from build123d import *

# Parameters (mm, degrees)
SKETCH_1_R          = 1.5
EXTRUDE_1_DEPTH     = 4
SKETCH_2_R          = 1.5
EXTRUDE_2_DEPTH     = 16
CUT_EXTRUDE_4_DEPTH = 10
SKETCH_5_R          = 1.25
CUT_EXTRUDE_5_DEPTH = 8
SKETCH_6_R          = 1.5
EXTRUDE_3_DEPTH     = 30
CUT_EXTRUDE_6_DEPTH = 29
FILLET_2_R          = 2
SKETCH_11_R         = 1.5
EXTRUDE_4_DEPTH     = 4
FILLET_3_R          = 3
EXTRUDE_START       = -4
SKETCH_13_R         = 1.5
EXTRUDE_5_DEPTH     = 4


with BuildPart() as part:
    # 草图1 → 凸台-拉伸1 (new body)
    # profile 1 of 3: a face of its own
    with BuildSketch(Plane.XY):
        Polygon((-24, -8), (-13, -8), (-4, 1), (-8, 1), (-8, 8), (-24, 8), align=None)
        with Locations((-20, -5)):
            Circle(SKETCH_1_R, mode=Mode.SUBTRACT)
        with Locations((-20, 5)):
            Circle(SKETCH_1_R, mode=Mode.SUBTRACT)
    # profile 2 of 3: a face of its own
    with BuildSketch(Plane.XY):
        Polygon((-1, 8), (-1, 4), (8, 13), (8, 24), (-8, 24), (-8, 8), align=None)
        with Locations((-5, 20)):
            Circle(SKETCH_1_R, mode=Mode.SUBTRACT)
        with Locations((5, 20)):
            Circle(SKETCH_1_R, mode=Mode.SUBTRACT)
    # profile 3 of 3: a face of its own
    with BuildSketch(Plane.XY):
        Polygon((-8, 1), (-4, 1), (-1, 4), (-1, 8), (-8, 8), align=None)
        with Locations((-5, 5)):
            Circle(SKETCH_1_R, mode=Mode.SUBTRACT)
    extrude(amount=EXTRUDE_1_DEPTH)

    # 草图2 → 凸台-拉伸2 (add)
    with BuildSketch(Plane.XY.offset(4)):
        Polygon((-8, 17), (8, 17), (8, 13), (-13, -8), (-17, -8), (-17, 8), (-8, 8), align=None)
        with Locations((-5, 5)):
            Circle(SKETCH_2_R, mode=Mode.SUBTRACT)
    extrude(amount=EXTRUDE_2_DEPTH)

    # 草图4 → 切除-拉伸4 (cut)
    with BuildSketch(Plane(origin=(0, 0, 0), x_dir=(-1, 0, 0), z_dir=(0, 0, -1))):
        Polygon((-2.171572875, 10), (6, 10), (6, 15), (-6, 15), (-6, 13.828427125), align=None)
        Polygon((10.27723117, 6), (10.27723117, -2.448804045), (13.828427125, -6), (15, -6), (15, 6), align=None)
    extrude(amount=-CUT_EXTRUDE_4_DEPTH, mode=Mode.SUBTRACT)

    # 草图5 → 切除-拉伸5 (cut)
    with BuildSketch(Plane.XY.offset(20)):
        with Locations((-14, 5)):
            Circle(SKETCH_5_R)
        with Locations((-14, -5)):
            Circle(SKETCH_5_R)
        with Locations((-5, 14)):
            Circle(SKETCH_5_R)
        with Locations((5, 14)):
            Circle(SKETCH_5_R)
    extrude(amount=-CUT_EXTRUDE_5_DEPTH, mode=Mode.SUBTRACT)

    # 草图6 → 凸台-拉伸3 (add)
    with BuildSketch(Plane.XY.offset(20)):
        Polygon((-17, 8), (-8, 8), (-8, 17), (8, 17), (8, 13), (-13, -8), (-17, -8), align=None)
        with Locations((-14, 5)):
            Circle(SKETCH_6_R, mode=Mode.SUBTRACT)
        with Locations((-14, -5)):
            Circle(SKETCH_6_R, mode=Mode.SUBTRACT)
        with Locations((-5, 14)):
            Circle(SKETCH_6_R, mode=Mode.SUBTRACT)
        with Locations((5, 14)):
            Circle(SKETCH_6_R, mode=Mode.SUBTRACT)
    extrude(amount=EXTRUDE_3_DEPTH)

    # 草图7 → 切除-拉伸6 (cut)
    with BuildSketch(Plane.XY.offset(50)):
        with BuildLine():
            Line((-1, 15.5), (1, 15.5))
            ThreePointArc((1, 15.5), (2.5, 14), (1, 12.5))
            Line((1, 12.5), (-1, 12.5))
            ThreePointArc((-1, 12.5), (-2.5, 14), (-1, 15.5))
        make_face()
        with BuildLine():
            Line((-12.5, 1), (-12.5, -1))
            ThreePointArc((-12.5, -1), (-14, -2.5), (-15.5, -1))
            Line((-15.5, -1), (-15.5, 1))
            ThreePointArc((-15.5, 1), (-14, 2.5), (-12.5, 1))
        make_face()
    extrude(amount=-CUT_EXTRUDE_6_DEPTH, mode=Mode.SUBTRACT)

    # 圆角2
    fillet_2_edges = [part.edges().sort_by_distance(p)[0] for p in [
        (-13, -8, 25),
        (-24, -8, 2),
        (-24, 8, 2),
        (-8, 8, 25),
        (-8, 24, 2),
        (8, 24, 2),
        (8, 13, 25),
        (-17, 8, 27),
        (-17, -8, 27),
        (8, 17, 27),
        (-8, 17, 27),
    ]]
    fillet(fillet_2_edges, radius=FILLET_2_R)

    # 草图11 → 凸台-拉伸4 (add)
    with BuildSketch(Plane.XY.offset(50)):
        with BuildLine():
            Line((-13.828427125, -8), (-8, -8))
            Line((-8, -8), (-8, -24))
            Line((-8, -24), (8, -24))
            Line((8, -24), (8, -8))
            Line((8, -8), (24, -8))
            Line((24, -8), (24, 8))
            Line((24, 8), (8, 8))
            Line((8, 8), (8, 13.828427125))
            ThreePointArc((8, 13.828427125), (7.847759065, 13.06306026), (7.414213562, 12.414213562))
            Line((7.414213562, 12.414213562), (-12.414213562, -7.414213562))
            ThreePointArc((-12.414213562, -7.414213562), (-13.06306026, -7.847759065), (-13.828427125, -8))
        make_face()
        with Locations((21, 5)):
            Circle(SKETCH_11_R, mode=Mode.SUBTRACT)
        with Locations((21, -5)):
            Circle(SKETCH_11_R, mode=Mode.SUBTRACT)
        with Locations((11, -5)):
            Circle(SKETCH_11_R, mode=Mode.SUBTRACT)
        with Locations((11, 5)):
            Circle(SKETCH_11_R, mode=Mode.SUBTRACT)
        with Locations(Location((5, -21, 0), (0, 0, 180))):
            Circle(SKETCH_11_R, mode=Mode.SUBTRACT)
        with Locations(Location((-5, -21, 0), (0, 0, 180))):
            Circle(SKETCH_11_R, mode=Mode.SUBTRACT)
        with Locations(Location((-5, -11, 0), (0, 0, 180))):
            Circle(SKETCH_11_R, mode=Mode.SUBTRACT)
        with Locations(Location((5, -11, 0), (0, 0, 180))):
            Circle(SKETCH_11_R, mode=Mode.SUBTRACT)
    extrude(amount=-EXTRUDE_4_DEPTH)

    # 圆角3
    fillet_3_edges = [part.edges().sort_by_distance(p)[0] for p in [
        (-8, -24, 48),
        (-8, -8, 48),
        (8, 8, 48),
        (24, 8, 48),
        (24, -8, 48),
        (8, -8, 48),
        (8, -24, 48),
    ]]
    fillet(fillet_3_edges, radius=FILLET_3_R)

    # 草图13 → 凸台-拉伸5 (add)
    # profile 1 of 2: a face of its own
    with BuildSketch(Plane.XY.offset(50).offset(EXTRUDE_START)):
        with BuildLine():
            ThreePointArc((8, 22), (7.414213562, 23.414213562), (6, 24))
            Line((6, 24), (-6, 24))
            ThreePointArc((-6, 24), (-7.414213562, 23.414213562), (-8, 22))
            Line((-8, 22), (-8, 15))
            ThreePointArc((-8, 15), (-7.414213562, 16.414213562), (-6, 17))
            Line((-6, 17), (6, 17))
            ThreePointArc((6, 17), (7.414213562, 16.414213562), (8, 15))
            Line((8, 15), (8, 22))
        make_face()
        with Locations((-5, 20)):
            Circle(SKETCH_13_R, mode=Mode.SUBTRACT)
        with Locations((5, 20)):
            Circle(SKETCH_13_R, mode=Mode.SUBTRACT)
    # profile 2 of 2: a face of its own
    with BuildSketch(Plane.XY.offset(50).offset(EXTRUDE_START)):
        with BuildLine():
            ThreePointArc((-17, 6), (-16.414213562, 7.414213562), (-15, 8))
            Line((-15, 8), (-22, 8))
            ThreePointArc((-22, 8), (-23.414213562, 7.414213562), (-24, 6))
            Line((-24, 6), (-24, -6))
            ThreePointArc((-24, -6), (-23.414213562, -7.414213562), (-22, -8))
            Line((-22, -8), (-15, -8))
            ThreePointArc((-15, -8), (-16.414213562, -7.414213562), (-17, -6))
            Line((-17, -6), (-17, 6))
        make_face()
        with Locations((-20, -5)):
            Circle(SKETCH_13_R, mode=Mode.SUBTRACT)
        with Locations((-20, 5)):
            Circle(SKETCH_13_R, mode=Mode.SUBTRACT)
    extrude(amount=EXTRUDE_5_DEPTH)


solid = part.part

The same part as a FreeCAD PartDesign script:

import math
import FreeCAD as App
import Part
import Sketcher

V = App.Vector
Q = App.Units.Quantity


def edges_at(feature, points):
    """Names of the edges that pass closest to the given points."""
    edges = feature.Shape.Edges
    near = lambda p: min(range(len(edges)), key=lambda i: edges[i].distToShape(Part.Vertex(*p))[0])
    return sorted({f"Edge{near(p) + 1}" for p in points})


def add_polygon(sketch, points):
    """Adds a closed chain of lines whose ends are joined by coincident constraints."""
    first, n = sketch.GeometryCount, len(points)
    for a, b in zip(points, points[1:] + points[:1]):
        sketch.addGeometry(Part.LineSegment(App.Vector(*a, 0), App.Vector(*b, 0)), False)
    for i in range(n):
        sketch.addConstraint(Sketcher.Constraint("Coincident", first + i, 2, first + (i + 1) % n, 1))

doc = App.newDocument("Part")
params = doc.addObject("Spreadsheet::Sheet", "Params")
for row, (alias, value) in enumerate([
    ("sketch1_diameter", "3 mm"),
    ("sketch1_width", "11 mm"),
    ("sketch1_width2", "16 mm"),
    ("pad1_length", "4 mm"),
    ("sketch2_diameter", "3 mm"),
    ("sketch2_width", "16 mm"),
    ("sketch2_width2", "9 mm"),
    ("sketch2_width3", "4 mm"),
    ("pad2_length", "16 mm"),
    ("sketch3_width", "12 mm"),
    ("sketch3_height", "5 mm"),
    ("pocket1_length", "10 mm"),
    ("sketch4_diameter", "2.5 mm"),
    ("pocket2_length", "8 mm"),
    ("sketch5_diameter", "3 mm"),
    ("sketch5_width", "9 mm"),
    ("sketch5_width2", "4 mm"),
    ("sketch5_width3", "16 mm"),
    ("pad3_length", "30 mm"),
    ("sketch6_radius", "1.5 mm"),
    ("sketch6_width", "2 mm"),
    ("pocket3_length", "29 mm"),
    ("fillet_radius", "2 mm"),
    ("sketch7_diameter", "3 mm"),
    ("sketch7_radius", "2 mm"),
    ("sketch7_width", "16 mm"),
    ("pad4_length", "4 mm"),
    ("fillet2_radius", "3 mm"),
    ("sketch8_diameter", "3 mm"),
    ("sketch8_radius", "2 mm"),
    ("sketch8_width", "12 mm"),
    ("sketch8_width2", "7 mm"),
    ("pad5_length", "4 mm"),
], start=1):
    params.set(f"A{row}", alias)
    params.set(f"B{row}", "=" + value)
    params.setAlias(f"B{row}", alias)

body = doc.addObject("PartDesign::Body", "Body")

sketch1 = body.newObject("Sketcher::SketchObject", "Sketch")
sketch1.AttachmentSupport = (doc.getObject("XY_Plane"), [""])
sketch1.MapMode = "FlatFace"
add_polygon(sketch1, [(-24, -8), (-13, -8), (8, 13), (8, 24), (-8, 24), (-8, 8), (-24, 8)])
sketch1.addGeometry(Part.Circle(V(-20, -5, 0), V(0, 0, 1), 1.5), False)
sketch1.addGeometry(Part.Circle(V(-20, 5, 0), V(0, 0, 1), 1.5), False)
sketch1.addGeometry(Part.Circle(V(-5, 5, 0), V(0, 0, 1), 1.5), False)
sketch1.addGeometry(Part.Circle(V(5, 20, 0), V(0, 0, 1), 1.5), False)
sketch1.addGeometry(Part.Circle(V(-5, 20, 0), V(0, 0, 1), 1.5), False)
sketch1.addConstraint([
    Sketcher.Constraint("Horizontal", 0),
    Sketcher.Constraint("Vertical", 2),
    Sketcher.Constraint("Horizontal", 3),
    Sketcher.Constraint("Vertical", 4),
    Sketcher.Constraint("Horizontal", 5),
    Sketcher.Constraint("Vertical", 6),
    Sketcher.Constraint("Equal", 7, 8),
    Sketcher.Constraint("Equal", 8, 9),
    Sketcher.Constraint("Equal", 9, 10),
    Sketcher.Constraint("Equal", 10, 11),
    Sketcher.Constraint("Symmetric", 10, 3, 11, 3, -2),
    Sketcher.Constraint("Symmetric", 7, 3, 8, 3, -1),
    Sketcher.Constraint("Horizontal", 8, 3, 9, 3),
    Sketcher.Constraint("Vertical", 9, 3, 11, 3),
    Sketcher.Constraint("Equal", 3, 5),
    Sketcher.Constraint("Equal", 0, 2),
    Sketcher.Constraint("Equal", 5, 4),
    Sketcher.Constraint("Equal", 4, 6),
    Sketcher.Constraint("Diameter", 7, 3.0),
    Sketcher.Constraint("DistanceX", 0, 1, 0, 2, 11.0),
    Sketcher.Constraint("DistanceX", 3, 2, 3, 1, 16.0),
    Sketcher.Constraint("DistanceX", 7, 3, -1, 1, 20.0),
    Sketcher.Constraint("DistanceY", 7, 3, -1, 1, 5.0),
    Sketcher.Constraint("DistanceX", 9, 3, -1, 1, 5.0),
    Sketcher.Constraint("DistanceY", -1, 1, 10, 3, 20.0),
    Sketcher.Constraint("DistanceX", 0, 2, -1, 1, 13.0),
    Sketcher.Constraint("DistanceY", 0, 2, -1, 1, 8.0),
])
sketch1.setExpression("Constraints[25]", "Params.sketch1_diameter")
sketch1.setExpression("Constraints[26]", "Params.sketch1_width")
sketch1.setExpression("Constraints[27]", "Params.sketch1_width2")
pad1 = body.newObject("PartDesign::Pad", "Pad")
pad1.Profile = sketch1
pad1.setExpression("Length", "Params.pad1_length")

sketch2 = body.newObject("Sketcher::SketchObject", "Sketch001")
sketch2.AttachmentSupport = (doc.getObject("XY_Plane"), [""])
sketch2.MapMode = "FlatFace"
sketch2.AttachmentOffset = App.Placement(V(0, 0, 4), App.Rotation())
add_polygon(sketch2, [(8, 17), (-8, 17), (-8, 8), (-17, 8), (-17, -8), (-13, -8), (8, 13)])
sketch2.addGeometry(Part.Circle(V(-5, 5, 0), V(0, 0, 1), 1.5), False)
sketch2.addConstraint([
    Sketcher.Constraint("Horizontal", 0),
    Sketcher.Constraint("Vertical", 1),
    Sketcher.Constraint("Horizontal", 2),
    Sketcher.Constraint("Vertical", 3),
    Sketcher.Constraint("Horizontal", 4),
    Sketcher.Constraint("Vertical", 6),
    Sketcher.Constraint("Equal", 2, 1),
    Sketcher.Constraint("Equal", 0, 3),
    Sketcher.Constraint("Equal", 4, 6),
    Sketcher.Constraint("Diameter", 7, 3.0),
    Sketcher.Constraint("DistanceX", 0, 2, 0, 1, 16.0),
    Sketcher.Constraint("DistanceX", 2, 2, 2, 1, 9.0),
    Sketcher.Constraint("DistanceX", 4, 1, 4, 2, 4.0),
    Sketcher.Constraint("DistanceX", 7, 3, -1, 1, 5.0),
    Sketcher.Constraint("DistanceY", -1, 1, 7, 3, 5.0),
    Sketcher.Constraint("DistanceX", 0, 2, -1, 1, 8.0),
    Sketcher.Constraint("DistanceY", -1, 1, 0, 2, 17.0),
])
sketch2.setExpression("Constraints[16]", "Params.sketch2_diameter")
sketch2.setExpression("Constraints[17]", "Params.sketch2_width")
sketch2.setExpression("Constraints[18]", "Params.sketch2_width2")
sketch2.setExpression("Constraints[19]", "Params.sketch2_width3")
pad2 = body.newObject("PartDesign::Pad", "Pad001")
pad2.Profile = sketch2
pad2.setExpression("Length", "Params.pad2_length")

sketch3 = body.newObject("Sketcher::SketchObject", "Sketch002")
sketch3.AttachmentSupport = (doc.getObject("XY_Plane"), [""])
sketch3.MapMode = "FlatFace"
add_polygon(sketch3, [(2.171573, 10), (-6, 10), (-6, 15), (6, 15), (6, 13.828427)])
add_polygon(sketch3, [(-10.277231, 6), (-10.277231, -2.448804), (-13.828427, -6), (-15, -6), (-15, 6)])
sketch3.addConstraint([
    Sketcher.Constraint("Horizontal", 0),
    Sketcher.Constraint("Vertical", 1),
    Sketcher.Constraint("Horizontal", 2),
    Sketcher.Constraint("Vertical", 3),
    Sketcher.Constraint("Vertical", 5),
    Sketcher.Constraint("Horizontal", 7),
    Sketcher.Constraint("Vertical", 8),
    Sketcher.Constraint("Horizontal", 9),
    Sketcher.Constraint("Parallel", 4, 6),
    Sketcher.Constraint("Equal", 7, 3),
    Sketcher.Constraint("Equal", 2, 8),
    Sketcher.Constraint("DistanceX", 2, 1, 2, 2, 12.0),
    Sketcher.Constraint("DistanceY", 1, 1, 1, 2, 5.0),
    Sketcher.Constraint("Angle", 4, Q("-135 deg")),
    Sketcher.Constraint("DistanceX", 0, 2, -1, 1, 6.0),
    Sketcher.Constraint("DistanceY", -1, 1, 0, 2, 10.0),
    Sketcher.Constraint("DistanceY", 6, 2, -1, 1, 6.0),
    Sketcher.Constraint("DistanceX", 7, 2, -1, 1, 15.0),
    Sketcher.Constraint("DistanceX", 9, 1, 9, 2, 4.722769),
    Sketcher.Constraint("Distance", 6, 5.022149),
])
sketch3.setExpression("Constraints[21]", "Params.sketch3_width")
sketch3.setExpression("Constraints[22]", "Params.sketch3_height")
pocket1 = body.newObject("PartDesign::Pocket", "Pocket")
pocket1.Profile = sketch3
pocket1.setExpression("Length", "Params.pocket1_length")
pocket1.Reversed = True

sketch4 = body.newObject("Sketcher::SketchObject", "Sketch003")
sketch4.AttachmentSupport = (doc.getObject("XY_Plane"), [""])
sketch4.MapMode = "FlatFace"
sketch4.AttachmentOffset = App.Placement(V(0, 0, 20), App.Rotation())
sketch4.addGeometry([
    Part.Circle(V(-14, 5, 0), V(0, 0, 1), 1.25),
    Part.Circle(V(-14, -5, 0), V(0, 0, 1), 1.25),
    Part.Circle(V(-5, 14, 0), V(0, 0, 1), 1.25),
    Part.Circle(V(5, 14, 0), V(0, 0, 1), 1.25),
], False)
sketch4.addConstraint([
    Sketcher.Constraint("Equal", 0, 1),
    Sketcher.Constraint("Equal", 1, 2),
    Sketcher.Constraint("Equal", 2, 3),
    Sketcher.Constraint("Symmetric", 2, 3, 3, 3, -2),
    Sketcher.Constraint("Symmetric", 0, 3, 1, 3, -1),
    Sketcher.Constraint("Diameter", 0, 2.5),
    Sketcher.Constraint("DistanceX", 0, 3, -1, 1, 14.0),
    Sketcher.Constraint("DistanceY", -1, 1, 0, 3, 5.0),
    Sketcher.Constraint("DistanceX", 2, 3, -1, 1, 5.0),
    Sketcher.Constraint("DistanceY", -1, 1, 2, 3, 14.0),
])
sketch4.setExpression("Constraints[5]", "Params.sketch4_diameter")
pocket2 = body.newObject("PartDesign::Pocket", "Pocket001")
pocket2.Profile = sketch4
pocket2.setExpression("Length", "Params.pocket2_length")

sketch5 = body.newObject("Sketcher::SketchObject", "Sketch004")
sketch5.AttachmentSupport = (doc.getObject("XY_Plane"), [""])
sketch5.MapMode = "FlatFace"
sketch5.AttachmentOffset = App.Placement(V(0, 0, 20), App.Rotation())
add_polygon(sketch5, [(-8, 8), (-17, 8), (-17, -8), (-13, -8), (8, 13), (8, 17), (-8, 17)])
sketch5.addGeometry(Part.Circle(V(-14, -5, 0), V(0, 0, 1), 1.5), False)
sketch5.addGeometry(Part.Circle(V(5, 14, 0), V(0, 0, 1), 1.5), False)
sketch5.addGeometry(Part.Circle(V(-14, 5, 0), V(0, 0, 1), 1.5), False)
sketch5.addGeometry(Part.Circle(V(-5, 14, 0), V(0, 0, 1), 1.5), False)
sketch5.addConstraint([
    Sketcher.Constraint("Horizontal", 0),
    Sketcher.Constraint("Vertical", 1),
    Sketcher.Constraint("Horizontal", 2),
    Sketcher.Constraint("Vertical", 4),
    Sketcher.Constraint("Horizontal", 5),
    Sketcher.Constraint("Vertical", 6),
    Sketcher.Constraint("Equal", 7, 8),
    Sketcher.Constraint("Equal", 8, 9),
    Sketcher.Constraint("Equal", 9, 10),
    Sketcher.Constraint("Symmetric", 8, 3, 10, 3, -2),
    Sketcher.Constraint("Symmetric", 7, 3, 9, 3, -1),
    Sketcher.Constraint("Equal", 5, 1),
    Sketcher.Constraint("Equal", 2, 4),
    Sketcher.Constraint("Equal", 0, 6),
    Sketcher.Constraint("Diameter", 7, 3.0),
    Sketcher.Constraint("DistanceX", 0, 2, 0, 1, 9.0),
    Sketcher.Constraint("DistanceX", 2, 1, 2, 2, 4.0),
    Sketcher.Constraint("DistanceX", 5, 2, 5, 1, 16.0),
    Sketcher.Constraint("DistanceX", 7, 3, -1, 1, 14.0),
    Sketcher.Constraint("DistanceY", 7, 3, -1, 1, 5.0),
    Sketcher.Constraint("DistanceX", -1, 1, 8, 3, 5.0),
    Sketcher.Constraint("DistanceY", -1, 1, 8, 3, 14.0),
    Sketcher.Constraint("DistanceX", 0, 2, -1, 1, 17.0),
    Sketcher.Constraint("DistanceY", -1, 1, 0, 2, 8.0),
])
sketch5.setExpression("Constraints[21]", "Params.sketch5_diameter")
sketch5.setExpression("Constraints[22]", "Params.sketch5_width")
sketch5.setExpression("Constraints[23]", "Params.sketch5_width2")
sketch5.setExpression("Constraints[24]", "Params.sketch5_width3")
pad3 = body.newObject("PartDesign::Pad", "Pad002")
pad3.Profile = sketch5
pad3.setExpression("Length", "Params.pad3_length")

sketch6 = body.newObject("Sketcher::SketchObject", "Sketch005")
sketch6.AttachmentSupport = (doc.getObject("XY_Plane"), [""])
sketch6.MapMode = "FlatFace"
sketch6.AttachmentOffset = App.Placement(V(0, 0, 50), App.Rotation())
sketch6.addGeometry([
    Part.LineSegment(V(1, 15.5, 0), V(-1, 15.5, 0)),
    Part.ArcOfCircle(Part.Circle(V(-1, 14, 0), V(0, 0, 1), 1.5), math.radians(90), math.radians(270)),
    Part.LineSegment(V(-1, 12.5, 0), V(1, 12.5, 0)),
    Part.ArcOfCircle(Part.Circle(V(1, 14, 0), V(0, 0, 1), 1.5), math.radians(-90), math.radians(90)),
    Part.LineSegment(V(-12.5, -1, 0), V(-12.5, 1, 0)),
    Part.ArcOfCircle(Part.Circle(V(-14, 1, 0), V(0, 0, 1), 1.5), math.radians(0), math.radians(180)),
    Part.LineSegment(V(-15.5, 1, 0), V(-15.5, -1, 0)),
    Part.ArcOfCircle(Part.Circle(V(-14, -1, 0), V(0, 0, 1), 1.5), math.radians(180), math.radians(360)),
], False)
sketch6.addConstraint([
    Sketcher.Constraint("Tangent", 0, 2, 1, 1),
    Sketcher.Constraint("Tangent", 1, 2, 2, 1),
    Sketcher.Constraint("Tangent", 2, 2, 3, 1),
    Sketcher.Constraint("Tangent", 3, 2, 0, 1),
    Sketcher.Constraint("Tangent", 4, 2, 5, 1),
    Sketcher.Constraint("Tangent", 5, 2, 6, 1),
    Sketcher.Constraint("Tangent", 6, 2, 7, 1),
    Sketcher.Constraint("Tangent", 7, 2, 4, 1),
    Sketcher.Constraint("Horizontal", 0),
    Sketcher.Constraint("Horizontal", 2),
    Sketcher.Constraint("Vertical", 4),
    Sketcher.Constraint("Vertical", 6),
    Sketcher.Constraint("Equal", 3, 5),
    Sketcher.Constraint("Equal", 2, 4),
    Sketcher.Constraint("Radius", 1, 1.5),
    Sketcher.Constraint("DistanceX", 0, 2, 0, 1, 2.0),
    Sketcher.Constraint("DistanceX", 1, 3, -1, 1, 1.0),
    Sketcher.Constraint("DistanceY", -1, 1, 1, 3, 14.0),
    Sketcher.Constraint("DistanceX", 5, 3, -1, 1, 14.0),
    Sketcher.Constraint("DistanceY", -1, 1, 5, 3, 1.0),
])
sketch6.setExpression("Constraints[14]", "Params.sketch6_radius")
sketch6.setExpression("Constraints[15]", "Params.sketch6_width")
pocket3 = body.newObject("PartDesign::Pocket", "Pocket002")
pocket3.Profile = sketch6
pocket3.setExpression("Length", "Params.pocket3_length")
doc.recompute()

fillet = body.newObject("PartDesign::Fillet", "Fillet")
fillet.Base = (pocket3, edges_at(pocket3, [
    (-13, -8, 25),
    (-24, -8, 2),
    (-24, 8, 2),
    (-8, 8, 25),
    (-8, 24, 2),
    (8, 24, 2),
    (8, 13, 25),
    (-17, 8, 27),
    (-17, -8, 27),
    (8, 17, 27),
    (-8, 17, 27),
]))
fillet.setExpression("Radius", "Params.fillet_radius")

sketch7 = body.newObject("Sketcher::SketchObject", "Sketch006")
sketch7.AttachmentSupport = (doc.getObject("XY_Plane"), [""])
sketch7.MapMode = "FlatFace"
sketch7.AttachmentOffset = App.Placement(V(0, 0, 50), App.Rotation())
sketch7.addGeometry([
    Part.LineSegment(V(-13.828427, -8, 0), V(-8, -8, 0)),
    Part.LineSegment(V(-8, -8, 0), V(-8, -24, 0)),
    Part.LineSegment(V(-8, -24, 0), V(8, -24, 0)),
    Part.LineSegment(V(8, -24, 0), V(8, -8, 0)),
    Part.LineSegment(V(8, -8, 0), V(24, -8, 0)),
    Part.LineSegment(V(24, -8, 0), V(24, 8, 0)),
    Part.LineSegment(V(24, 8, 0), V(8, 8, 0)),
    Part.LineSegment(V(8, 8, 0), V(8, 13.828427, 0)),
    Part.ArcOfCircle(Part.Circle(V(6, 13.828427, 0), V(0, 0, 1), 2), math.radians(-45), math.radians(0)),
    Part.LineSegment(V(7.414214, 12.414214, 0), V(-12.414214, -7.414214, 0)),
    Part.ArcOfCircle(Part.Circle(V(-13.828427, -6, 0), V(0, 0, 1), 2), math.radians(-90), math.radians(-45)),
    Part.Circle(V(-5, -21, 0), V(0, 0, 1), 1.5),
    Part.Circle(V(5, -21, 0), V(0, 0, 1), 1.5),
    Part.Circle(V(-5, -11, 0), V(0, 0, 1), 1.5),
    Part.Circle(V(5, -11, 0), V(0, 0, 1), 1.5),
    Part.Circle(V(11, -5, 0), V(0, 0, 1), 1.5),
    Part.Circle(V(21, -5, 0), V(0, 0, 1), 1.5),
    Part.Circle(V(11, 5, 0), V(0, 0, 1), 1.5),
    Part.Circle(V(21, 5, 0), V(0, 0, 1), 1.5),
], False)
sketch7.addConstraint([
    Sketcher.Constraint("Coincident", 0, 2, 1, 1),
    Sketcher.Constraint("Coincident", 1, 2, 2, 1),
    Sketcher.Constraint("Coincident", 2, 2, 3, 1),
    Sketcher.Constraint("Coincident", 3, 2, 4, 1),
    Sketcher.Constraint("Coincident", 4, 2, 5, 1),
    Sketcher.Constraint("Coincident", 5, 2, 6, 1),
    Sketcher.Constraint("Coincident", 6, 2, 7, 1),
    Sketcher.Constraint("Tangent", 7, 2, 8, 2),
    Sketcher.Constraint("Tangent", 8, 1, 9, 1),
    Sketcher.Constraint("Tangent", 9, 2, 10, 2),
    Sketcher.Constraint("Tangent", 10, 1, 0, 1),
    Sketcher.Constraint("Horizontal", 0),
    Sketcher.Constraint("Vertical", 1),
    Sketcher.Constraint("Horizontal", 2),
    Sketcher.Constraint("Vertical", 3),
    Sketcher.Constraint("Horizontal", 4),
    Sketcher.Constraint("Vertical", 5),
    Sketcher.Constraint("Horizontal", 6),
    Sketcher.Constraint("Vertical", 7),
    Sketcher.Constraint("Equal", 8, 10),
    Sketcher.Constraint("Equal", 11, 12),
    Sketcher.Constraint("Equal", 12, 13),
    Sketcher.Constraint("Equal", 13, 14),
    Sketcher.Constraint("Equal", 14, 15),
    Sketcher.Constraint("Equal", 15, 16),
    Sketcher.Constraint("Equal", 16, 17),
    Sketcher.Constraint("Equal", 17, 18),
    Sketcher.Constraint("Symmetric", 0, 2, 6, 2, -1, 1),
    Sketcher.Constraint("Symmetric", 11, 3, 12, 3, -2),
    Sketcher.Constraint("Symmetric", 13, 3, 14, 3, -2),
    Sketcher.Constraint("Symmetric", 0, 2, 3, 2, -2),
    Sketcher.Constraint("Symmetric", 15, 3, 17, 3, -1),
    Sketcher.Constraint("Symmetric", 16, 3, 18, 3, -1),
    Sketcher.Constraint("Horizontal", 15, 3, 16, 3),
    Sketcher.Constraint("Vertical", 11, 3, 13, 3),
    Sketcher.Constraint("Equal", 2, 4),
    Sketcher.Constraint("Equal", 6, 1),
    Sketcher.Constraint("Equal", 3, 5),
    Sketcher.Constraint("Equal", 0, 7),
    Sketcher.Constraint("Diameter", 11, 3.0),
    Sketcher.Constraint("Radius", 8, 2.0),
    Sketcher.Constraint("DistanceX", 2, 1, 2, 2, 16.0),
    Sketcher.Constraint("DistanceX", 11, 3, -1, 1, 5.0),
    Sketcher.Constraint("DistanceY", 11, 3, -1, 1, 21.0),
    Sketcher.Constraint("DistanceY", 13, 3, -1, 1, 11.0),
    Sketcher.Constraint("DistanceX", -1, 1, 15, 3, 11.0),
    Sketcher.Constraint("DistanceY", 15, 3, -1, 1, 5.0),
    Sketcher.Constraint("DistanceX", -1, 1, 16, 3, 21.0),
    Sketcher.Constraint("Distance", 9, 28.041631),
])
sketch7.setExpression("Constraints[39]", "Params.sketch7_diameter")
sketch7.setExpression("Constraints[40]", "Params.sketch7_radius")
sketch7.setExpression("Constraints[41]", "Params.sketch7_width")
pad4 = body.newObject("PartDesign::Pad", "Pad003")
pad4.Profile = sketch7
pad4.setExpression("Length", "Params.pad4_length")
pad4.Reversed = True
doc.recompute()

fillet2 = body.newObject("PartDesign::Fillet", "Fillet001")
fillet2.Base = (pad4, edges_at(pad4, [
    (-8, -24, 48),
    (-8, -8, 48),
    (8, 8, 48),
    (24, 8, 48),
    (24, -8, 48),
    (8, -8, 48),
    (8, -24, 48),
]))
fillet2.setExpression("Radius", "Params.fillet2_radius")

sketch8 = body.newObject("Sketcher::SketchObject", "Sketch007")
sketch8.AttachmentSupport = (doc.getObject("XY_Plane"), [""])
sketch8.MapMode = "FlatFace"
sketch8.AttachmentOffset = App.Placement(V(0, 0, 46), App.Rotation())
sketch8.addGeometry([
    Part.ArcOfCircle(Part.Circle(V(6, 22, 0), V(0, 0, 1), 2), math.radians(0), math.radians(90)),
    Part.LineSegment(V(6, 24, 0), V(-6, 24, 0)),
    Part.ArcOfCircle(Part.Circle(V(-6, 22, 0), V(0, 0, 1), 2), math.radians(90), math.radians(180)),
    Part.LineSegment(V(-8, 22, 0), V(-8, 15, 0)),
    Part.ArcOfCircle(Part.Circle(V(-6, 15, 0), V(0, 0, 1), 2), math.radians(90), math.radians(180)),
    Part.LineSegment(V(-6, 17, 0), V(6, 17, 0)),
    Part.ArcOfCircle(Part.Circle(V(6, 15, 0), V(0, 0, 1), 2), math.radians(0), math.radians(90)),
    Part.LineSegment(V(8, 15, 0), V(8, 22, 0)),
    Part.Circle(V(-5, 20, 0), V(0, 0, 1), 1.5),
    Part.Circle(V(5, 20, 0), V(0, 0, 1), 1.5),
    Part.ArcOfCircle(Part.Circle(V(-15, 6, 0), V(0, 0, 1), 2), math.radians(90), math.radians(180)),
    Part.LineSegment(V(-15, 8, 0), V(-22, 8, 0)),
    Part.ArcOfCircle(Part.Circle(V(-22, 6, 0), V(0, 0, 1), 2), math.radians(90), math.radians(180)),
    Part.LineSegment(V(-24, 6, 0), V(-24, -6, 0)),
    Part.ArcOfCircle(Part.Circle(V(-22, -6, 0), V(0, 0, 1), 2), math.radians(-180), math.radians(-90)),
    Part.LineSegment(V(-22, -8, 0), V(-15, -8, 0)),
    Part.ArcOfCircle(Part.Circle(V(-15, -6, 0), V(0, 0, 1), 2), math.radians(-180), math.radians(-90)),
    Part.LineSegment(V(-17, -6, 0), V(-17, 6, 0)),
    Part.Circle(V(-20, -5, 0), V(0, 0, 1), 1.5),
    Part.Circle(V(-20, 5, 0), V(0, 0, 1), 1.5),
], False)
sketch8.addConstraint([
    Sketcher.Constraint("Tangent", 0, 2, 1, 1),
    Sketcher.Constraint("Tangent", 1, 2, 2, 1),
    Sketcher.Constraint("Tangent", 2, 2, 3, 1),
    Sketcher.Constraint("Tangent", 3, 2, 4, 2),
    Sketcher.Constraint("Tangent", 4, 1, 5, 1),
    Sketcher.Constraint("Tangent", 5, 2, 6, 2),
    Sketcher.Constraint("Tangent", 6, 1, 7, 1),
    Sketcher.Constraint("Tangent", 7, 2, 0, 1),
    Sketcher.Constraint("Tangent", 10, 1, 11, 1),
    Sketcher.Constraint("Tangent", 11, 2, 12, 1),
    Sketcher.Constraint("Tangent", 12, 2, 13, 1),
    Sketcher.Constraint("Tangent", 13, 2, 14, 1),
    Sketcher.Constraint("Tangent", 14, 2, 15, 1),
    Sketcher.Constraint("Tangent", 15, 2, 16, 2),
    Sketcher.Constraint("Tangent", 16, 1, 17, 1),
    Sketcher.Constraint("Tangent", 17, 2, 10, 2),
    Sketcher.Constraint("Horizontal", 1),
    Sketcher.Constraint("Vertical", 3),
    Sketcher.Constraint("Horizontal", 5),
    Sketcher.Constraint("Vertical", 7),
    Sketcher.Constraint("Horizontal", 11),
    Sketcher.Constraint("Vertical", 13),
    Sketcher.Constraint("Horizontal", 15),
    Sketcher.Constraint("Vertical", 17),
    Sketcher.Constraint("Equal", 0, 2),
    Sketcher.Constraint("Equal", 2, 4),
    Sketcher.Constraint("Equal", 4, 6),
    Sketcher.Constraint("Equal", 8, 9),
    Sketcher.Constraint("Equal", 6, 10),
    Sketcher.Constraint("Equal", 10, 12),
    Sketcher.Constraint("Equal", 12, 14),
    Sketcher.Constraint("Equal", 14, 16),
    Sketcher.Constraint("Equal", 9, 18),
    Sketcher.Constraint("Equal", 18, 19),
    Sketcher.Constraint("Symmetric", 8, 3, 9, 3, -2),
    Sketcher.Constraint("Symmetric", 18, 3, 19, 3, -1),
    Sketcher.Constraint("Equal", 15, 3),
    Sketcher.Constraint("Equal", 5, 13),
    Sketcher.Constraint("Diameter", 8, 3.0),
    Sketcher.Constraint("Radius", 0, 2.0),
    Sketcher.Constraint("DistanceX", 1, 2, 1, 1, 12.0),
    Sketcher.Constraint("DistanceX", 11, 2, 11, 1, 7.0),
    Sketcher.Constraint("DistanceX", -1, 1, 0, 3, 6.0),
    Sketcher.Constraint("DistanceY", -1, 1, 0, 3, 22.0),
    Sketcher.Constraint("DistanceX", 8, 3, -1, 1, 5.0),
    Sketcher.Constraint("DistanceY", -1, 1, 8, 3, 20.0),
    Sketcher.Constraint("DistanceX", 10, 3, -1, 1, 15.0),
    Sketcher.Constraint("DistanceY", -1, 1, 10, 3, 6.0),
    Sketcher.Constraint("DistanceX", 18, 3, -1, 1, 20.0),
    Sketcher.Constraint("DistanceY", 18, 3, -1, 1, 5.0),
])
sketch8.setExpression("Constraints[38]", "Params.sketch8_diameter")
sketch8.setExpression("Constraints[39]", "Params.sketch8_radius")
sketch8.setExpression("Constraints[40]", "Params.sketch8_width")
sketch8.setExpression("Constraints[41]", "Params.sketch8_width2")
pad5 = body.newObject("PartDesign::Pad", "Pad004")
pad5.Profile = sketch8
pad5.setExpression("Length", "Params.pad5_length")

doc.recompute()
